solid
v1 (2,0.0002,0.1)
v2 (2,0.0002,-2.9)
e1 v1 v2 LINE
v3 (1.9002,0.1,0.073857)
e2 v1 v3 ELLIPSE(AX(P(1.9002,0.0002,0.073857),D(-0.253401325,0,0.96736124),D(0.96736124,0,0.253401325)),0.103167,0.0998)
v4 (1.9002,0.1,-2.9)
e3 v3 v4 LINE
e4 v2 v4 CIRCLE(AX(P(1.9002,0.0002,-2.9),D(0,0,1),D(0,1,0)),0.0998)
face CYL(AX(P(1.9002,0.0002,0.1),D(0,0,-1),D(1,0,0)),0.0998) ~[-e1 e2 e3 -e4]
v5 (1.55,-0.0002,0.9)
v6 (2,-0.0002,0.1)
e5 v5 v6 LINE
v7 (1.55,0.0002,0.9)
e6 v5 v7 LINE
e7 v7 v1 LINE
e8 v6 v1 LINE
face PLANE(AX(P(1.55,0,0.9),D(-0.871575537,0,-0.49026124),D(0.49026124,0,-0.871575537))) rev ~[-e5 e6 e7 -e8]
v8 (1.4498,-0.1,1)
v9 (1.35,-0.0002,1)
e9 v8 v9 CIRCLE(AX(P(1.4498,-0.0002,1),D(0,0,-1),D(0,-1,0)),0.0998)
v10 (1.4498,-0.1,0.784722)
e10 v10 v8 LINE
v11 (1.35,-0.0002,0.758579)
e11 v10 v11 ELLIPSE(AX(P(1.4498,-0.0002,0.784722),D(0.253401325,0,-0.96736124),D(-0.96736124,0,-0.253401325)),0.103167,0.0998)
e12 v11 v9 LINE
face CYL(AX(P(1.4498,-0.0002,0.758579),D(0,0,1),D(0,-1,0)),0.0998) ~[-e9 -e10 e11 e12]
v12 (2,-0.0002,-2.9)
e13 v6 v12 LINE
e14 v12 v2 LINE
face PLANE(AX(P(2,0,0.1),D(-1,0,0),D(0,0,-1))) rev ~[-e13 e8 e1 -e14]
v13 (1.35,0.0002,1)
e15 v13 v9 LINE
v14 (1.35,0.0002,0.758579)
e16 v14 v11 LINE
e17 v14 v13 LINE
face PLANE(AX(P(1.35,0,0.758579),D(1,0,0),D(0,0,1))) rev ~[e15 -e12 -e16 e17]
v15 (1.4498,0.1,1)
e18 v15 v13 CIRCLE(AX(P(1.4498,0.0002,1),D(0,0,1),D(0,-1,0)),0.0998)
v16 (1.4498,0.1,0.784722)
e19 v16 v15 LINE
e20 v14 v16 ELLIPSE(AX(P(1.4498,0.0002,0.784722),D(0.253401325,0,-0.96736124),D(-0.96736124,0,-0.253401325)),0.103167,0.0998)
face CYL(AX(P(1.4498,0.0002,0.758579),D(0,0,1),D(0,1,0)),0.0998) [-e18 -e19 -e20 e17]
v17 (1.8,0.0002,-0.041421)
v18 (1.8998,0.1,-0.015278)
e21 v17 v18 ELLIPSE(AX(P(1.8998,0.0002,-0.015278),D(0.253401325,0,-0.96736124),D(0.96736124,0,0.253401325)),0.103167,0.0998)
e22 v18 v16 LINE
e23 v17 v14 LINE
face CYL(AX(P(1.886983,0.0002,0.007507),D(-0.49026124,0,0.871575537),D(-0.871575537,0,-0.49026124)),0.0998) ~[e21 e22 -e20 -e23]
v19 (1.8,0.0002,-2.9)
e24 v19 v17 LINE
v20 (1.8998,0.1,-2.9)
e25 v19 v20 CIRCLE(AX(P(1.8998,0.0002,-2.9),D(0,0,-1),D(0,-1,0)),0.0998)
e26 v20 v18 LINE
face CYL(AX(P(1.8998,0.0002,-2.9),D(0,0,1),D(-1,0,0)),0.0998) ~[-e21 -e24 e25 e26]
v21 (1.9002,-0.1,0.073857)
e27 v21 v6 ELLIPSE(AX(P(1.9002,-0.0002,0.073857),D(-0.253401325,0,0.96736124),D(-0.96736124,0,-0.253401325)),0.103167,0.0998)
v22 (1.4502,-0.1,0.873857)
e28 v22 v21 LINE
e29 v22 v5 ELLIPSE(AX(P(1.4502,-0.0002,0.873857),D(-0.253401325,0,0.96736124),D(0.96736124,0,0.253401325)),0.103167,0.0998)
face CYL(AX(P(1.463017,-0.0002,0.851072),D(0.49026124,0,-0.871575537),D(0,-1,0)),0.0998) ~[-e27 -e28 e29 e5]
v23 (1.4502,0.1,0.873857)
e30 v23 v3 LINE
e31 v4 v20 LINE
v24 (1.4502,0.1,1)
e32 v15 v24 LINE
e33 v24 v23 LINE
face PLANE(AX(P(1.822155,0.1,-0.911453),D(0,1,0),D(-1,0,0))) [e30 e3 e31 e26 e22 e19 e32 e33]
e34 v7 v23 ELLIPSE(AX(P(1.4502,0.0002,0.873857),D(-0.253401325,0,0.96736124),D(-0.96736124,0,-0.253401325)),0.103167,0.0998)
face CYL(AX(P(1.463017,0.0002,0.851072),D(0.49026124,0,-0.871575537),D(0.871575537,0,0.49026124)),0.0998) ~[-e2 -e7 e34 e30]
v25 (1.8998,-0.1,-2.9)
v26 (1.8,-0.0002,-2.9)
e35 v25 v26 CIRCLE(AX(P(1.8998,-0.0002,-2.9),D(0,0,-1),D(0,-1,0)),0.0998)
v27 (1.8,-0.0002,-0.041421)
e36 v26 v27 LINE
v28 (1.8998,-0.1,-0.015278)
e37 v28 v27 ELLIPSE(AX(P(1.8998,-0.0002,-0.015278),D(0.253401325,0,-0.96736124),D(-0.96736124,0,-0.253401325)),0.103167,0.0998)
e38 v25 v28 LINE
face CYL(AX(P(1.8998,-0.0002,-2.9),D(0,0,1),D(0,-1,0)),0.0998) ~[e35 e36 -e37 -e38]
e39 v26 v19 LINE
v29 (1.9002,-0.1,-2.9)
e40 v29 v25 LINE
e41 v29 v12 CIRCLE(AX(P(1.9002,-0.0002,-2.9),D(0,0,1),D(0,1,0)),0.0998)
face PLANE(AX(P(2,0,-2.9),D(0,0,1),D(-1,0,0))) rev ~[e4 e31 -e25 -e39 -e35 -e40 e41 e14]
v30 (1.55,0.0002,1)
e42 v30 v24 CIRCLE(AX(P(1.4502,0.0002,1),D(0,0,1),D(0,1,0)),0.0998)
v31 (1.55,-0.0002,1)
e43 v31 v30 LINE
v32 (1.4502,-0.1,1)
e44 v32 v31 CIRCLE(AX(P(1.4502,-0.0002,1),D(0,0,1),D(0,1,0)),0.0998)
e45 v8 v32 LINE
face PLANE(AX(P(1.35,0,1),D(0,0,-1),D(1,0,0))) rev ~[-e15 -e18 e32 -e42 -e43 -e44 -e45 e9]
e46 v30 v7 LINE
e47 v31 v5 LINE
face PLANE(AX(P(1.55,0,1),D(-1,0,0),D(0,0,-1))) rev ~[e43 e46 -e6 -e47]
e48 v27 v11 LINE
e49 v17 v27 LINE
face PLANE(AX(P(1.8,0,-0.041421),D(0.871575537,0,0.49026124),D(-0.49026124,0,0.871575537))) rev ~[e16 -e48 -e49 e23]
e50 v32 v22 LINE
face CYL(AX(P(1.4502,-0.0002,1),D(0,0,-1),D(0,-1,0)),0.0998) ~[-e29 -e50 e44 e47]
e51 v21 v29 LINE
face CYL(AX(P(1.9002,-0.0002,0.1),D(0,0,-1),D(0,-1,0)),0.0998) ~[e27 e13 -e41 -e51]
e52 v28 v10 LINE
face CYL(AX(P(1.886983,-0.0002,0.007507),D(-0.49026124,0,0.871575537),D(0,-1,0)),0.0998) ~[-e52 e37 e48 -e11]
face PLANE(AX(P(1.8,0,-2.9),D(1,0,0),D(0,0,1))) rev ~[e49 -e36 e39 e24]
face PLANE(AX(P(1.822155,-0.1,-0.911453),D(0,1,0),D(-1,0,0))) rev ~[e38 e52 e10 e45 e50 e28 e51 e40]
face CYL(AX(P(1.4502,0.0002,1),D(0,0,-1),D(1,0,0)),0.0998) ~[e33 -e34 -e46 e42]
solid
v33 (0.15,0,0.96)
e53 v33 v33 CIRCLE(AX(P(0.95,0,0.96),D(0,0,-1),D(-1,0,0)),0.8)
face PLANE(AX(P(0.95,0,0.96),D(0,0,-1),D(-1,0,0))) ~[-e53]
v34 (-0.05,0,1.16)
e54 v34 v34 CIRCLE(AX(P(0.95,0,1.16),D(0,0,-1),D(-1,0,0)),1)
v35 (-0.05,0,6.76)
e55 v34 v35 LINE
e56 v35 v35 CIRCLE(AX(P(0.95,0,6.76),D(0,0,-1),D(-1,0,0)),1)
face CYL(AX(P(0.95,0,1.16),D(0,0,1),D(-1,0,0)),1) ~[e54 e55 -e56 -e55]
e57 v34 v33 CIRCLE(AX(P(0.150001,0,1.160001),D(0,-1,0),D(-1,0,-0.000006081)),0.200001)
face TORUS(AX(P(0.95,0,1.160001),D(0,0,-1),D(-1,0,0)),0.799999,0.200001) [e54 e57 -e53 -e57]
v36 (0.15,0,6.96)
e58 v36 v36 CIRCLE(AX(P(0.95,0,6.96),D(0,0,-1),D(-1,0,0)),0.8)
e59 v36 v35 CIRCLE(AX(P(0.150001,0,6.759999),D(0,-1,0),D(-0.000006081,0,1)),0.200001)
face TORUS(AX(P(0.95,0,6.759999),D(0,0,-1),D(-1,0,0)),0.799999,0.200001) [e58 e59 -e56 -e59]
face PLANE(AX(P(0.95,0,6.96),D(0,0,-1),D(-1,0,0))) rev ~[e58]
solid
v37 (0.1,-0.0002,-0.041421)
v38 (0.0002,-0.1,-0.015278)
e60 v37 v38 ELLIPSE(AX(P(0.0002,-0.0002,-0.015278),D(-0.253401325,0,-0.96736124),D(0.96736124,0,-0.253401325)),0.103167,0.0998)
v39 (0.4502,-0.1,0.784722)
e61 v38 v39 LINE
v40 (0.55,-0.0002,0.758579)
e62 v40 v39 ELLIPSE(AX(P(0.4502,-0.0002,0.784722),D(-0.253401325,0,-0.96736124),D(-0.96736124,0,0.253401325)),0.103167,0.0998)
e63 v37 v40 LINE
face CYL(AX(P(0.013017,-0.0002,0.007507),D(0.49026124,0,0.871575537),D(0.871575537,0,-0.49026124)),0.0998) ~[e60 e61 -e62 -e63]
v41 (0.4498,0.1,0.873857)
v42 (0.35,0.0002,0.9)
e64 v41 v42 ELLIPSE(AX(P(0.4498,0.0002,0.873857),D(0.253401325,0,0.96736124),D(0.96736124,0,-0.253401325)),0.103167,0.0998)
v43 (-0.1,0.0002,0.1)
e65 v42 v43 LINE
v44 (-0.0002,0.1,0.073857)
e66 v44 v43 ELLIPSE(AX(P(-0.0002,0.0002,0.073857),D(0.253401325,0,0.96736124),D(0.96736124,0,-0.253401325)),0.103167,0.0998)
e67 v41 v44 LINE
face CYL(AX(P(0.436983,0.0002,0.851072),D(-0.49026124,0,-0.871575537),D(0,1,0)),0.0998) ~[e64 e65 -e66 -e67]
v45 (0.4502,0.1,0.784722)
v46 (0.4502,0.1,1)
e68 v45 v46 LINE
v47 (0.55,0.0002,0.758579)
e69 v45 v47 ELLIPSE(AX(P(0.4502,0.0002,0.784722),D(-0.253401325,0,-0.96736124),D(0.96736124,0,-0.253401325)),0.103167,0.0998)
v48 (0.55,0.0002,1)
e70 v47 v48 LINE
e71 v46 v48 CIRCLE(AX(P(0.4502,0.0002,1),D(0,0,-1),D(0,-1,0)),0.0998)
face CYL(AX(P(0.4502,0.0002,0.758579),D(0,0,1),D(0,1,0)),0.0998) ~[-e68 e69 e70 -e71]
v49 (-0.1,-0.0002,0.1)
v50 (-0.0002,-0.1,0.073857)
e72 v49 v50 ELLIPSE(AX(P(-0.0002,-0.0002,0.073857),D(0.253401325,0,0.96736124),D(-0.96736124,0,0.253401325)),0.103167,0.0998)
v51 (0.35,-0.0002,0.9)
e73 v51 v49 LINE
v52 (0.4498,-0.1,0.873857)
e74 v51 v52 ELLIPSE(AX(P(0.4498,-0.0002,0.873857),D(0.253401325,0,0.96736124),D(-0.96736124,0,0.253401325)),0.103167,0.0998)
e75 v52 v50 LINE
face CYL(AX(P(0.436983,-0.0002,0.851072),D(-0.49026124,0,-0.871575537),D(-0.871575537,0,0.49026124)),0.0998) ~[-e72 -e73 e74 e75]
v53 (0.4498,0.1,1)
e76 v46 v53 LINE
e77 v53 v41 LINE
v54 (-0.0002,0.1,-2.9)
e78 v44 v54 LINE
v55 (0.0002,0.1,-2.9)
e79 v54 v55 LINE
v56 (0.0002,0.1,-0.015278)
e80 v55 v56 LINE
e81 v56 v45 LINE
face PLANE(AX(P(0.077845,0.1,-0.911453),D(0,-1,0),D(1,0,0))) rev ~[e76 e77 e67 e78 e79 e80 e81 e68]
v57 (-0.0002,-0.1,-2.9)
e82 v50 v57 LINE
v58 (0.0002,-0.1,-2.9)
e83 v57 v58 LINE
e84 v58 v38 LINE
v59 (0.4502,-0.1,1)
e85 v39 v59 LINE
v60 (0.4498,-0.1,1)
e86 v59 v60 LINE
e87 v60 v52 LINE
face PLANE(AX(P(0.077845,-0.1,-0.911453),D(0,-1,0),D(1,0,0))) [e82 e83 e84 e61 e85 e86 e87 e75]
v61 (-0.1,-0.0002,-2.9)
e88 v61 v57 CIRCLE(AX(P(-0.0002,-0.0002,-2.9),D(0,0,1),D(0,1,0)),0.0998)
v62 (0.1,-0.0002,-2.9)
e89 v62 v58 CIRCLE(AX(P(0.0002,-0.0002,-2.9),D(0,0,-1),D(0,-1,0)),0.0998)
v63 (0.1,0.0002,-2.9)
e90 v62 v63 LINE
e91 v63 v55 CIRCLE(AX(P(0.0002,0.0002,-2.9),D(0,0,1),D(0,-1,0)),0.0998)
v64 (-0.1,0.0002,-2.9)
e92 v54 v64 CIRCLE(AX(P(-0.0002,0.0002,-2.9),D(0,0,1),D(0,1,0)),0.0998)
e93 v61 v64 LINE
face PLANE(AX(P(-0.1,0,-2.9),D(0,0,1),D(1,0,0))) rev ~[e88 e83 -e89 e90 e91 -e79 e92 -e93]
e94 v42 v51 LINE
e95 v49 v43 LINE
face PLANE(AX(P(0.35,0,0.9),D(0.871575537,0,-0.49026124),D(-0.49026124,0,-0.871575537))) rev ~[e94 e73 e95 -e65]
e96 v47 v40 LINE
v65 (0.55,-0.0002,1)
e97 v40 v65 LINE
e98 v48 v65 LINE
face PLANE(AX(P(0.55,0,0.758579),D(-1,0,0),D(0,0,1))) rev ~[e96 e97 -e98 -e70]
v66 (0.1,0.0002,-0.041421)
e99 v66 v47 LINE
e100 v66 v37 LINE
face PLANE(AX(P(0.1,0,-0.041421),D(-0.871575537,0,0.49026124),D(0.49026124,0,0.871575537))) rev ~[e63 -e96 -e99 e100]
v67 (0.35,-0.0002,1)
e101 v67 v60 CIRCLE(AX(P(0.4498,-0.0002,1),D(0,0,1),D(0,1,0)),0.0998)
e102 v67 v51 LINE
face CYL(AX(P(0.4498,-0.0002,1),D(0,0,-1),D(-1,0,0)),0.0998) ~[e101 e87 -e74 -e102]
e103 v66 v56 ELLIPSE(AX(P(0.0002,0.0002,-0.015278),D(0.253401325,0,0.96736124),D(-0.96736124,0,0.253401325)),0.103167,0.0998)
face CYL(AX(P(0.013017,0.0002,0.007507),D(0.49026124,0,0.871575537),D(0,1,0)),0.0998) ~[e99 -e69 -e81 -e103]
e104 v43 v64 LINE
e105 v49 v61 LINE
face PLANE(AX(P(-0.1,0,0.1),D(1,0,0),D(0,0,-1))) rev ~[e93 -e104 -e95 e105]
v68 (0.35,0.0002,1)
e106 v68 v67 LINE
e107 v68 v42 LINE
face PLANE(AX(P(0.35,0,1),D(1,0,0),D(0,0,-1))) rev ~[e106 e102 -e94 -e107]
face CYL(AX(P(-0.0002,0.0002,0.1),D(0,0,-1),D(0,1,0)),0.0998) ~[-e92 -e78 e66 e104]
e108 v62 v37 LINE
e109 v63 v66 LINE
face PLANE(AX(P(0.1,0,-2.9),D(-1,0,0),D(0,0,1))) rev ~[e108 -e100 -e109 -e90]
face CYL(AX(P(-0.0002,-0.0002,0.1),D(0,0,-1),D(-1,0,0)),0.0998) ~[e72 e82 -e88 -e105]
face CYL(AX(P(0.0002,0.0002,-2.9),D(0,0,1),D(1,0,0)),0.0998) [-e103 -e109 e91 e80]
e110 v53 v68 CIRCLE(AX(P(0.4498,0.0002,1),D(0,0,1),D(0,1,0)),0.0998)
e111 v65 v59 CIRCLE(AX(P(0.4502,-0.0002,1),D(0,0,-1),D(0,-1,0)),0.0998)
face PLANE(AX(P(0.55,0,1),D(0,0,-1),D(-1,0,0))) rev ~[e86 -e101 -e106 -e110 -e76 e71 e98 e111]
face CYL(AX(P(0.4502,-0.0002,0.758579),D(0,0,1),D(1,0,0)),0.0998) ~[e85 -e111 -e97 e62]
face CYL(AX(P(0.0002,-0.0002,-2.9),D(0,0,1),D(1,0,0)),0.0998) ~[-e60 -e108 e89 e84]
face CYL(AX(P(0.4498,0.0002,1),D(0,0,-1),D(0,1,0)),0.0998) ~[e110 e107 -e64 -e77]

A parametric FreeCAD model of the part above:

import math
import FreeCAD as App
import Part
import Sketcher
from FreeCAD import Vector
Q = App.Units.Quantity


def edges_at(feature, points):
    """Names of the edges that pass closest to the given points."""
    edges = feature.Shape.Edges
    near = lambda p: min(range(len(edges)), key=lambda i: edges[i].distToShape(Part.Vertex(*p))[0])
    return sorted({f"Edge{near(p) + 1}" for p in points})


def add_polygon(sketch, points):
    """Adds a closed chain of lines whose ends are joined by coincident constraints."""
    first, n = sketch.GeometryCount, len(points)
    for a, b in zip(points, points[1:] + points[:1]):
        sketch.addGeometry(Part.LineSegment(App.Vector(*a, 0), App.Vector(*b, 0)), False)
    for i in range(n):
        sketch.addConstraint(Sketcher.Constraint("Coincident", first + i, 2, first + (i + 1) % n, 1))

doc = App.newDocument("Part")
body = doc.addObject("PartDesign::Body", "Body")

# Sketch on XZ plane
sketch1 = body.newObject("Sketcher::SketchObject", "Sketch")
sketch1.AttachmentSupport = (doc.getObject("XZ_Plane"), [""])
sketch1.MapMode = "FlatFace"
sketch1.addGeometry([
    Part.LineSegment(Vector(0.95, 6.96, 0), Vector(0.15, 6.96, 0)),  # 0
    Part.ArcOfCircle(Part.Circle(Vector(0.150001, 6.759999, 0), Vector(0, 0, 1), 0.200001), math.radians(90.000348), math.radians(179.999652)),  # 1
    Part.LineSegment(Vector(-0.05, 6.76, 0), Vector(-0.05, 1.16, 0)),  # 2
    Part.ArcOfCircle(Part.Circle(Vector(0.150001, 1.160001, 0), Vector(0, 0, 1), 0.200001), math.radians(-179.999652), math.radians(-90.000348)),  # 3
    Part.LineSegment(Vector(0.15, 0.96, 0), Vector(0.95, 0.96, 0)),  # 4
    Part.LineSegment(Vector(0.95, 0.96, 0), Vector(0.95, 6.96, 0)),  # 5
], False)
sketch1.addGeometry(Part.LineSegment(Vector(0.95, 6.96, 0), Vector(0.95, 0.96, 0)), True)  # axis
sketch1.addConstraint([
    Sketcher.Constraint("Coincident", 0, 2, 1, 1),
    Sketcher.Constraint("Coincident", 1, 2, 2, 1),
    Sketcher.Constraint("Coincident", 2, 2, 3, 1),
    Sketcher.Constraint("Coincident", 3, 2, 4, 1),
    Sketcher.Constraint("Coincident", 4, 2, 5, 1),
    Sketcher.Constraint("Coincident", 5, 2, 0, 1),
    Sketcher.Constraint("Horizontal", 0),
    Sketcher.Constraint("Vertical", 2),
    Sketcher.Constraint("Horizontal", 4),
    Sketcher.Constraint("Vertical", 5),
    Sketcher.Constraint("Vertical", 6),
    Sketcher.Constraint("Coincident", 6, 1, 5, 2),
    Sketcher.Constraint("Equal", 1, 3),
    Sketcher.Constraint("Horizontal", 3, 3, 2, 2),
    Sketcher.Constraint("Horizontal", 3, 2, 6, 2),
    Sketcher.Constraint("Vertical", 3, 3, 0, 2),
    Sketcher.Constraint("Vertical", 0, 2, 3, 2),
    Sketcher.Constraint("Radius", 1, Q("0.200001 mm")),
    Sketcher.Constraint("DistanceY", 5, 1, 5, 2, Q("6 mm")),
    Sketcher.Constraint("DistanceX", 0, 2, 0, 1, Q("0.8 mm")),
    Sketcher.Constraint("DistanceY", 2, 2, 2, 1, Q("5.6 mm")),
    Sketcher.Constraint("DistanceX", -1, 1, 1, 3, Q("0.150001 mm")),
    Sketcher.Constraint("DistanceY", -1, 1, 1, 3, Q("6.759999 mm")),
])
revolution = body.newObject("PartDesign::Revolution", "Revolution")
revolution.Profile = sketch1
revolution.ReferenceAxis = (sketch1, ["Axis0"])
revolution.Angle = 360
body2 = doc.addObject("PartDesign::Body", "Body001")
body2.AllowCompound = True

# Sketch on XZ plane
sketch2 = body2.newObject("Sketcher::SketchObject", "Sketch001")
sketch2.AttachmentSupport = (doc.getObject("XZ_Plane001"), [""])
sketch2.MapMode = "FlatFace"
add_polygon(sketch2, [(0.1, -2.9), (0.1, -0.041421), (0.55, 0.758579), (0.55, 1), (0.35, 1), (0.35, 0.9), (-0.1, 0.1), (-0.1, -2.9)])  # lines 0-7
add_polygon(sketch2, [(1.55, 1), (1.35, 1), (1.35, 0.758579), (1.8, -0.041421), (1.8, -2.9), (2, -2.9), (2, 0.1), (1.55, 0.9)])  # lines 8-15
sketch2.addConstraint([
    Sketcher.Constraint("Vertical", 0),
    Sketcher.Constraint("Vertical", 2),
    Sketcher.Constraint("Horizontal", 3),
    Sketcher.Constraint("Vertical", 4),
    Sketcher.Constraint("Vertical", 6),
    Sketcher.Constraint("Horizontal", 7),
    Sketcher.Constraint("Horizontal", 8),
    Sketcher.Constraint("Vertical", 9),
    Sketcher.Constraint("Vertical", 11),
    Sketcher.Constraint("Horizontal", 12),
    Sketcher.Constraint("Vertical", 13),
    Sketcher.Constraint("Vertical", 15),
    Sketcher.Constraint("Parallel", 1, 5),
    Sketcher.Constraint("Parallel", 10, 14),
    Sketcher.Constraint("Horizontal", 3, 2, 8, 2),
    Sketcher.Constraint("Horizontal", 1, 2, 9, 2),
    Sketcher.Constraint("Horizontal", 0, 2, 10, 2),
    Sketcher.Constraint("Horizontal", 7, 2, 11, 2),
    Sketcher.Constraint("Horizontal", 5, 2, 13, 2),
    Sketcher.Constraint("Horizontal", 4, 2, 14, 2),
    Sketcher.Constraint("Equal", 3, 7),
    Sketcher.Constraint("Equal", 7, 8),
    Sketcher.Constraint("Equal", 5, 10),
    Sketcher.Constraint("DistanceY", 6, 2, 6, 1, Q("3 mm")),
    Sketcher.Constraint("DistanceX", 3, 2, 3, 1, Q("0.2 mm")),
    Sketcher.Constraint("DistanceY", 4, 2, 4, 1, Q("0.1 mm")),
    Sketcher.Constraint("DistanceY", -1, 1, 2, 2, Q("1 mm")),
    Sketcher.Constraint("DistanceX", -1, 1, 12, 2, Q("2 mm")),
    Sketcher.Constraint("DistanceX", 3, 2, 8, 2, Q("1 mm")),
    Sketcher.Constraint("DistanceX", -1, 1, 0, 2, Q("0.1 mm")),
    Sketcher.Constraint("DistanceY", -1, 1, 5, 2, Q("0.1 mm")),
    Sketcher.Constraint("DistanceY", 0, 1, 0, 2, Q("2.858579 mm")),
])
pad1 = body2.newObject("PartDesign::Pad", "Pad")
pad1.Profile = sketch2
pad1.Length = 0.2
pad1.Midplane = True
doc.recompute()

fillet = body2.newObject("PartDesign::Fillet", "Fillet")
fillet.Base = (pad1, edges_at(pad1, [
    (0.125, -0.1, 0.5),
    (0.35, -0.1, 0.95),
    (0.55, -0.1, 0.879),
    (0.325, -0.1, 0.359),
    (0.1, -0.1, -1.471),
    (-0.1, -0.1, -1.4),
    (0.1, 0.1, -1.471),
    (0.325, 0.1, 0.359),
    (0.55, 0.1, 0.879),
    (1.575, -0.1, 0.359),
    (1.35, -0.1, 0.879),
    (1.8, -0.1, -1.471),
    (2, -0.1, -1.4),
    (1.775, -0.1, 0.5),
    (1.55, -0.1, 0.95),
    (1.55, 0.1, 0.95),
    (1.775, 0.1, 0.5),
    (2, 0.1, -1.4),
    (1.8, 0.1, -1.471),
    (1.575, 0.1, 0.359),
    (1.35, 0.1, 0.879),
    (0.35, 0.1, 0.95),
    (-0.1, 0.1, -1.4),
    (0.125, 0.1, 0.5),
]))
fillet.Radius = 0.0998

doc.recompute()
